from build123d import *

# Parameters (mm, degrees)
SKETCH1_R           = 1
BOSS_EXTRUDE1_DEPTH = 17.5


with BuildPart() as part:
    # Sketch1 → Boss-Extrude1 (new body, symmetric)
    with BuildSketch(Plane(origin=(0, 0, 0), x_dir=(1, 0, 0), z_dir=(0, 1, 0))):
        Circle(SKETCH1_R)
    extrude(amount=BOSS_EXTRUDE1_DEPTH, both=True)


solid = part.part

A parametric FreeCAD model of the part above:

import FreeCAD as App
import Part
import Sketcher

V = App.Vector

doc = App.newDocument("Part")
body = doc.addObject("PartDesign::Body", "Body")

sketch1 = body.newObject("Sketcher::SketchObject", "Sketch")
sketch1.AttachmentSupport = (doc.getObject("XZ_Plane"), [""])
sketch1.MapMode = "FlatFace"
sketch1.addGeometry(Part.Circle(V(0, 0, 0), V(0, 0, 1), 1), False)
sketch1.addConstraint([
    Sketcher.Constraint("Coincident", 0, 3, -1, 1),
    Sketcher.Constraint("Diameter", 0, 2.0),
])
pad1 = body.newObject("PartDesign::Pad", "Pad")
pad1.Profile = sketch1
pad1.Length = 35
pad1.Midplane = True

doc.recompute()
